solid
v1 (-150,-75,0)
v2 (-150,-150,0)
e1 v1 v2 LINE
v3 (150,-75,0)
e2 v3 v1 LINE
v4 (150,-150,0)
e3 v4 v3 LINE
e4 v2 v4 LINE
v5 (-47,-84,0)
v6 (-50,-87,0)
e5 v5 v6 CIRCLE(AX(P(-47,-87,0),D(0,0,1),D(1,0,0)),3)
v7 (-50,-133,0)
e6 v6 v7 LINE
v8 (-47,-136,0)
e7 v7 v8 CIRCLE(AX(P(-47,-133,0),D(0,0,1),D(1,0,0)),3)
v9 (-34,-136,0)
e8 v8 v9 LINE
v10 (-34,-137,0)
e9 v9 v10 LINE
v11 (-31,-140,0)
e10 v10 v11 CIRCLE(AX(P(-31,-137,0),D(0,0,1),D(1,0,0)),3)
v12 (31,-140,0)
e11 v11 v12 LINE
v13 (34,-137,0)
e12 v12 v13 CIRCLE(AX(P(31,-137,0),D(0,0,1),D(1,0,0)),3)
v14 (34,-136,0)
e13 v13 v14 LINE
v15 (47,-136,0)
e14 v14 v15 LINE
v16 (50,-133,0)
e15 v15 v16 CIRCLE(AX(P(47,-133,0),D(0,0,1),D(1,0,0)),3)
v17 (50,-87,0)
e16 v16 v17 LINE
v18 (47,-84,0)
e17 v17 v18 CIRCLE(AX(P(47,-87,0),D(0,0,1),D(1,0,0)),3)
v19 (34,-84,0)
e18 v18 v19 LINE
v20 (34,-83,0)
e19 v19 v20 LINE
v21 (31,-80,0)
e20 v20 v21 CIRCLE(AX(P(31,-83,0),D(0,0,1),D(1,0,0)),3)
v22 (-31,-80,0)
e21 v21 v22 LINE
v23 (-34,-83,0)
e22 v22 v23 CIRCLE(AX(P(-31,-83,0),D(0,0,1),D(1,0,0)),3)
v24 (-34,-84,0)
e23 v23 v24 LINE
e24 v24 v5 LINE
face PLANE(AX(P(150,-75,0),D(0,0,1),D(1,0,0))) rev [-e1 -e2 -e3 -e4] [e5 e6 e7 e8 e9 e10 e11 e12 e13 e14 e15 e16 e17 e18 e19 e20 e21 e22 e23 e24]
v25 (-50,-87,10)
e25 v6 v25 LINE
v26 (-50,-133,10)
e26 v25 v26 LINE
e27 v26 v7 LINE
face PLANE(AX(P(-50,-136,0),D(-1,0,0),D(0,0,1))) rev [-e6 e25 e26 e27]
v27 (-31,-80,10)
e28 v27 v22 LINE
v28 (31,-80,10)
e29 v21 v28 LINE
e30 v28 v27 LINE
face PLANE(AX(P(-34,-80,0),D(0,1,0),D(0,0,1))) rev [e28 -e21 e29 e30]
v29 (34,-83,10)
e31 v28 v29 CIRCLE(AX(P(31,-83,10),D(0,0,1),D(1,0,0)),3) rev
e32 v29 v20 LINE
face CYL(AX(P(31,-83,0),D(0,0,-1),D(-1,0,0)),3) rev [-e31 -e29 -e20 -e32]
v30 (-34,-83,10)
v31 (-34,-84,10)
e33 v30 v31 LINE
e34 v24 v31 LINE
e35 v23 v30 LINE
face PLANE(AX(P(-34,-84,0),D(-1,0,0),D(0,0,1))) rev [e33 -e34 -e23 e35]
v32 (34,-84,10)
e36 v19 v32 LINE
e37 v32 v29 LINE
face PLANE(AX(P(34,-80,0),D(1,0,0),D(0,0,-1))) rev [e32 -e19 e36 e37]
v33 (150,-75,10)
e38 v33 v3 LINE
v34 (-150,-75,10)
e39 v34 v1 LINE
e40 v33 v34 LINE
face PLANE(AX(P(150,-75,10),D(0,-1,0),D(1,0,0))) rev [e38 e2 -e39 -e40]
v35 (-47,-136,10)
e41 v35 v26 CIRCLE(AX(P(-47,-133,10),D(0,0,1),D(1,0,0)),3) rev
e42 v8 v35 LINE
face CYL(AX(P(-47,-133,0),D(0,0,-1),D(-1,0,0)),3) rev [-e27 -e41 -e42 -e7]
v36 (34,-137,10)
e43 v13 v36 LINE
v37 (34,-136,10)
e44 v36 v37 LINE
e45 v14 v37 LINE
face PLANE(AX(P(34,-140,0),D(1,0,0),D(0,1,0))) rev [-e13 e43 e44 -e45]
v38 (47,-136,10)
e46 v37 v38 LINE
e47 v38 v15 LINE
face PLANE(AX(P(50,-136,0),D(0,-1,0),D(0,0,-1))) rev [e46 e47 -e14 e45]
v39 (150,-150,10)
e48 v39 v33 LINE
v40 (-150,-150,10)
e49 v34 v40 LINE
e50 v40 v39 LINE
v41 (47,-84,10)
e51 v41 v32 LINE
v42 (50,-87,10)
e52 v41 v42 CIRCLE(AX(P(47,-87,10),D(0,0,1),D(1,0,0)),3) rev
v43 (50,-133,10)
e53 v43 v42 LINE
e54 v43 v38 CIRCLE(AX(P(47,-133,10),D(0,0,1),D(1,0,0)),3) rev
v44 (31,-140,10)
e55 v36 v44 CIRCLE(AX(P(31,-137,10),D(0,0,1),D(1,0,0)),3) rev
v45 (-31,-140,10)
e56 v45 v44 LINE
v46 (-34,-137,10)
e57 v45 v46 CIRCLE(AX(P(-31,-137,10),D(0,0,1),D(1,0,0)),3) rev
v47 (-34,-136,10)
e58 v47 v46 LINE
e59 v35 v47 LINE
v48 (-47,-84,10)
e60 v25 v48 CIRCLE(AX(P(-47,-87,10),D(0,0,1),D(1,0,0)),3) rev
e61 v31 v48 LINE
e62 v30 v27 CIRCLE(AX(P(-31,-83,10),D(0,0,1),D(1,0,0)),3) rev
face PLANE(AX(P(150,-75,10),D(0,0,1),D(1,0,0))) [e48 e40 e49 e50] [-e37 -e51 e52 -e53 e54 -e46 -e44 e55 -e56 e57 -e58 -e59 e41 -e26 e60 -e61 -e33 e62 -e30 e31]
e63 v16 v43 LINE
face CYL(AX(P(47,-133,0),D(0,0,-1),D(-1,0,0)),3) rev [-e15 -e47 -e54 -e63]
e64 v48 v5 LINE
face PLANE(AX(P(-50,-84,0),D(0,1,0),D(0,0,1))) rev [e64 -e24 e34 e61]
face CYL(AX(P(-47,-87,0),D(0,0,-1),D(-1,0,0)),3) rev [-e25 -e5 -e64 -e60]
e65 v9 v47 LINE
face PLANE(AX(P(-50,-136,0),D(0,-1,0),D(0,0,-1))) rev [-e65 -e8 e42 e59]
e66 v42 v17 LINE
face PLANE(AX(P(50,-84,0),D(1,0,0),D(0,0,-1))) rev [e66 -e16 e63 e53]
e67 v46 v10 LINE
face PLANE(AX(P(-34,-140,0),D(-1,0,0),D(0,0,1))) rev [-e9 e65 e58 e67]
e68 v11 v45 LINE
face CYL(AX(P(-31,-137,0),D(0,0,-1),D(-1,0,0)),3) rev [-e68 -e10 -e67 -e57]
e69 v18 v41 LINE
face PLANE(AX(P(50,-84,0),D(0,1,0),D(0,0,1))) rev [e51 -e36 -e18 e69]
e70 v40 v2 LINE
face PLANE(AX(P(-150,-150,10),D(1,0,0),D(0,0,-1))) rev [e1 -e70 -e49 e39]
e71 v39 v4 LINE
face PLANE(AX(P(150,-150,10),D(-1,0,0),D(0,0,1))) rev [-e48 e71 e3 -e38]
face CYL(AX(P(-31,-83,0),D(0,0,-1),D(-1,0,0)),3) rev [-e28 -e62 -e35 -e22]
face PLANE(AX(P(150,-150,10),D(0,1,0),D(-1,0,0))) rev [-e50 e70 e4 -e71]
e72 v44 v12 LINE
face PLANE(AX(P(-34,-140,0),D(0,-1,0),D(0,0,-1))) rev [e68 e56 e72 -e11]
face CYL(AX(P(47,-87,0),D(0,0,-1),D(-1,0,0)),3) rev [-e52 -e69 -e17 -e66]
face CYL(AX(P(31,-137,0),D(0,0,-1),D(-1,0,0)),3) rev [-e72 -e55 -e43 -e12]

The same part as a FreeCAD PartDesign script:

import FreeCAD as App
import Part
import Sketcher
from FreeCAD import Vector


def edges_at(feature, points):
    """Names of the edges that pass closest to the given points."""
    edges = feature.Shape.Edges
    near = lambda p: min(range(len(edges)), key=lambda i: edges[i].distToShape(Part.Vertex(*p))[0])
    return sorted({f"Edge{near(p) + 1}" for p in points})


def add_polygon(sketch, points):
    """Adds a closed chain of lines whose ends are joined by coincident constraints."""
    first, n = sketch.GeometryCount, len(points)
    for a, b in zip(points, points[1:] + points[:1]):
        sketch.addGeometry(Part.LineSegment(App.Vector(*a, 0), App.Vector(*b, 0)), False)
    for i in range(n):
        sketch.addConstraint(Sketcher.Constraint("Coincident", first + i, 2, first + (i + 1) % n, 1))

doc = App.newDocument("Part")
params = doc.addObject("Spreadsheet::Sheet", "Params")
for row, (alias, value) in enumerate([
    ("sketch1_width", "300 mm"),
    ("sketch1_height", "75 mm"),
    ("pad1_length", "10 mm"),
    ("sketch2_width", "68 mm"),
    ("sketch2_width2", "16 mm"),
    ("sketch2_height", "4 mm"),
    ("sketch2_height2", "52 mm"),
    ("pocket1_length", "10 mm"),
    ("fillet_radius", "3 mm"),
], start=1):
    params.set(f"A{row}", alias)
    params.set(f"B{row}", "=" + value)
    params.setAlias(f"B{row}", alias)

body = doc.addObject("PartDesign::Body", "Body")

# Sketch on XY plane
sketch1 = body.newObject("Sketcher::SketchObject", "Sketch")
sketch1.AttachmentSupport = (doc.getObject("XY_Plane"), [""])
sketch1.MapMode = "FlatFace"
add_polygon(sketch1, [(-150, -75), (-150, -150), (150, -150), (150, -75)])  # lines 0-3
sketch1.addConstraint(Sketcher.Constraint("Vertical", 0))
sketch1.addConstraint(Sketcher.Constraint("Horizontal", 1))
sketch1.addConstraint(Sketcher.Constraint("Vertical", 2))
sketch1.addConstraint(Sketcher.Constraint("Horizontal", 3))
sketch1.addConstraint(Sketcher.Constraint("DistanceX", 1, 1, 1, 2, 300.0))
sketch1.addConstraint(Sketcher.Constraint("DistanceY", 0, 2, 0, 1, 75.0))
sketch1.addConstraint(Sketcher.Constraint("DistanceX", 0, 2, -1, 1, 150.0))
sketch1.addConstraint(Sketcher.Constraint("DistanceY", 0, 2, -1, 1, 150.0))
sketch1.setExpression("Constraints[8]", "Params.sketch1_width")
sketch1.setExpression("Constraints[9]", "Params.sketch1_height")
pad1 = body.newObject("PartDesign::Pad", "Pad")
pad1.Profile = sketch1
pad1.setExpression("Length", "Params.pad1_length")

# Sketch on XY plane
sketch2 = body.newObject("Sketcher::SketchObject", "Sketch001")
sketch2.AttachmentSupport = (doc.getObject("XY_Plane"), [""])
sketch2.MapMode = "FlatFace"
sketch2.AttachmentOffset = App.Placement(Vector(0, 0, 10), App.Rotation())
add_polygon(sketch2, [(-34, -140), (34, -140), (34, -136), (50, -136), (50, -84), (34, -84), (34, -80), (-34, -80), (-34, -84), (-50, -84), (-50, -136), (-34, -136)])  # lines 0-11
sketch2.addConstraint(Sketcher.Constraint("Horizontal", 0))
sketch2.addConstraint(Sketcher.Constraint("Vertical", 1))
sketch2.addConstraint(Sketcher.Constraint("Horizontal", 2))
sketch2.addConstraint(Sketcher.Constraint("Vertical", 3))
sketch2.addConstraint(Sketcher.Constraint("Horizontal", 4))
sketch2.addConstraint(Sketcher.Constraint("Vertical", 5))
sketch2.addConstraint(Sketcher.Constraint("Horizontal", 6))
sketch2.addConstraint(Sketcher.Constraint("Vertical", 7))
sketch2.addConstraint(Sketcher.Constraint("Horizontal", 8))
sketch2.addConstraint(Sketcher.Constraint("Vertical", 9))
sketch2.addConstraint(Sketcher.Constraint("Horizontal", 10))
sketch2.addConstraint(Sketcher.Constraint("Vertical", 11))
sketch2.addConstraint(Sketcher.Constraint("Symmetric", 4, 2, 7, 2, -2))
sketch2.addConstraint(Sketcher.Constraint("Symmetric", 2, 2, 9, 2, -2))
sketch2.addConstraint(Sketcher.Constraint("Vertical", 1, 2, 4, 2))
sketch2.addConstraint(Sketcher.Constraint("Vertical", 7, 2, 10, 2))
sketch2.addConstraint(Sketcher.Constraint("Equal", 1, 5))
sketch2.addConstraint(Sketcher.Constraint("DistanceX", 0, 1, 0, 2, 68.0))
sketch2.addConstraint(Sketcher.Constraint("DistanceX", 2, 1, 2, 2, 16.0))
sketch2.addConstraint(Sketcher.Constraint("DistanceY", 1, 1, 1, 2, 4.0))
sketch2.addConstraint(Sketcher.Constraint("DistanceY", 3, 1, 3, 2, 52.0))
sketch2.addConstraint(Sketcher.Constraint("DistanceY", 0, 2, -1, 1, 140.0))
sketch2.setExpression("Constraints[29]", "Params.sketch2_width")
sketch2.setExpression("Constraints[30]", "Params.sketch2_width2")
sketch2.setExpression("Constraints[31]", "Params.sketch2_height")
sketch2.setExpression("Constraints[32]", "Params.sketch2_height2")
pocket1 = body.newObject("PartDesign::Pocket", "Pocket")
pocket1.Profile = sketch2
pocket1.setExpression("Length", "Params.pocket1_length")
doc.recompute()

fillet = body.newObject("PartDesign::Fillet", "Fillet")
fillet.Base = (pocket1, edges_at(pocket1, [
    (-34, -140, 5),
    (-50, -136, 5),
    (-50, -84, 5),
    (-34, -80, 5),
    (34, -80, 5),
    (50, -84, 5),
    (50, -136, 5),
    (34, -140, 5),
]))
fillet.setExpression("Radius", "Params.fillet_radius")

doc.recompute()
